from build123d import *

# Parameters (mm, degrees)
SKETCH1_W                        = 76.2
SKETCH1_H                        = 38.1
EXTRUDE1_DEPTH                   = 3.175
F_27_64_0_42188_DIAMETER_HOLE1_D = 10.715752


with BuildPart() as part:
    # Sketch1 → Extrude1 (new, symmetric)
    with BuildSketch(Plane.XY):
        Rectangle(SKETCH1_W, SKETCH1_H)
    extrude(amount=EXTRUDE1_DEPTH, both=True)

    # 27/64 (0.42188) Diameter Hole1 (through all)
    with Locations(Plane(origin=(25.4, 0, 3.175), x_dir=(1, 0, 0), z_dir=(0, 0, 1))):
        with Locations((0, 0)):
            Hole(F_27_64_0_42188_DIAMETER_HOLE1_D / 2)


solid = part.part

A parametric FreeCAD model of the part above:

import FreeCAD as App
import Part
import Sketcher

V = App.Vector
Q = App.Units.Quantity

doc = App.newDocument("Part")
body = doc.addObject("PartDesign::Body", "Body")

# Sketch on XY plane
sketch1 = body.newObject("Sketcher::SketchObject", "Sketch")
sketch1.AttachmentSupport = (doc.getObject("XY_Plane"), [""])
sketch1.MapMode = "FlatFace"
sketch1.addGeometry([
    Part.LineSegment(V(-38, 19, 0), V(-38, -19, 0)),
    Part.LineSegment(V(-38, -19, 0), V(38, -19, 0)),
    Part.LineSegment(V(38, -19, 0), V(38, 19, 0)),
    Part.LineSegment(V(38, 19, 0), V(-38, 19, 0)),
], False)
sketch1.addConstraint([
    Sketcher.Constraint("Coincident", 0, 2, 1, 1),
    Sketcher.Constraint("Coincident", 1, 2, 2, 1),
    Sketcher.Constraint("Coincident", 2, 2, 3, 1),
    Sketcher.Constraint("Coincident", 3, 2, 0, 1),
    Sketcher.Constraint("Vertical", 0),
    Sketcher.Constraint("Horizontal", 1),
    Sketcher.Constraint("Vertical", 2),
    Sketcher.Constraint("Horizontal", 3),
    Sketcher.Constraint("Symmetric", 0, 2, 2, 2, -1, 1),
    Sketcher.Constraint("DistanceX", 1, 1, 1, 2, Q("3 in")),
    Sketcher.Constraint("DistanceY", 0, 2, 0, 1, Q("1.5 in")),
])
pad1 = body.newObject("PartDesign::Pad", "Pad")
pad1.Profile = sketch1
pad1.Length = Q("0.25 in")
pad1.Midplane = True

# Sketch on XY plane
sketch2 = body.newObject("Sketcher::SketchObject", "Sketch001")
sketch2.AttachmentSupport = (doc.getObject("XY_Plane"), [""])
sketch2.MapMode = "FlatFace"
sketch2.AttachmentOffset = App.Placement(V(0, 0, 0.125 * 25.4), App.Rotation())
sketch2.addGeometry(Part.Circle(V(25, 0, 0), V(0, 0, 1), 5), False)
sketch2.addConstraint([
    Sketcher.Constraint("PointOnObject", 0, 3, -1),
    Sketcher.Constraint("DistanceX", -1, 1, 0, 3, Q("1 in")),
    Sketcher.Constraint("Diameter", 0, 10.715752),
])
doc.recompute()
hole = body.newObject("PartDesign::Hole", "Hole")
hole.Profile = sketch2
hole.ThreadType = "None"
hole.Diameter = 10.715752
hole.DepthType = "ThroughAll"

doc.recompute()
